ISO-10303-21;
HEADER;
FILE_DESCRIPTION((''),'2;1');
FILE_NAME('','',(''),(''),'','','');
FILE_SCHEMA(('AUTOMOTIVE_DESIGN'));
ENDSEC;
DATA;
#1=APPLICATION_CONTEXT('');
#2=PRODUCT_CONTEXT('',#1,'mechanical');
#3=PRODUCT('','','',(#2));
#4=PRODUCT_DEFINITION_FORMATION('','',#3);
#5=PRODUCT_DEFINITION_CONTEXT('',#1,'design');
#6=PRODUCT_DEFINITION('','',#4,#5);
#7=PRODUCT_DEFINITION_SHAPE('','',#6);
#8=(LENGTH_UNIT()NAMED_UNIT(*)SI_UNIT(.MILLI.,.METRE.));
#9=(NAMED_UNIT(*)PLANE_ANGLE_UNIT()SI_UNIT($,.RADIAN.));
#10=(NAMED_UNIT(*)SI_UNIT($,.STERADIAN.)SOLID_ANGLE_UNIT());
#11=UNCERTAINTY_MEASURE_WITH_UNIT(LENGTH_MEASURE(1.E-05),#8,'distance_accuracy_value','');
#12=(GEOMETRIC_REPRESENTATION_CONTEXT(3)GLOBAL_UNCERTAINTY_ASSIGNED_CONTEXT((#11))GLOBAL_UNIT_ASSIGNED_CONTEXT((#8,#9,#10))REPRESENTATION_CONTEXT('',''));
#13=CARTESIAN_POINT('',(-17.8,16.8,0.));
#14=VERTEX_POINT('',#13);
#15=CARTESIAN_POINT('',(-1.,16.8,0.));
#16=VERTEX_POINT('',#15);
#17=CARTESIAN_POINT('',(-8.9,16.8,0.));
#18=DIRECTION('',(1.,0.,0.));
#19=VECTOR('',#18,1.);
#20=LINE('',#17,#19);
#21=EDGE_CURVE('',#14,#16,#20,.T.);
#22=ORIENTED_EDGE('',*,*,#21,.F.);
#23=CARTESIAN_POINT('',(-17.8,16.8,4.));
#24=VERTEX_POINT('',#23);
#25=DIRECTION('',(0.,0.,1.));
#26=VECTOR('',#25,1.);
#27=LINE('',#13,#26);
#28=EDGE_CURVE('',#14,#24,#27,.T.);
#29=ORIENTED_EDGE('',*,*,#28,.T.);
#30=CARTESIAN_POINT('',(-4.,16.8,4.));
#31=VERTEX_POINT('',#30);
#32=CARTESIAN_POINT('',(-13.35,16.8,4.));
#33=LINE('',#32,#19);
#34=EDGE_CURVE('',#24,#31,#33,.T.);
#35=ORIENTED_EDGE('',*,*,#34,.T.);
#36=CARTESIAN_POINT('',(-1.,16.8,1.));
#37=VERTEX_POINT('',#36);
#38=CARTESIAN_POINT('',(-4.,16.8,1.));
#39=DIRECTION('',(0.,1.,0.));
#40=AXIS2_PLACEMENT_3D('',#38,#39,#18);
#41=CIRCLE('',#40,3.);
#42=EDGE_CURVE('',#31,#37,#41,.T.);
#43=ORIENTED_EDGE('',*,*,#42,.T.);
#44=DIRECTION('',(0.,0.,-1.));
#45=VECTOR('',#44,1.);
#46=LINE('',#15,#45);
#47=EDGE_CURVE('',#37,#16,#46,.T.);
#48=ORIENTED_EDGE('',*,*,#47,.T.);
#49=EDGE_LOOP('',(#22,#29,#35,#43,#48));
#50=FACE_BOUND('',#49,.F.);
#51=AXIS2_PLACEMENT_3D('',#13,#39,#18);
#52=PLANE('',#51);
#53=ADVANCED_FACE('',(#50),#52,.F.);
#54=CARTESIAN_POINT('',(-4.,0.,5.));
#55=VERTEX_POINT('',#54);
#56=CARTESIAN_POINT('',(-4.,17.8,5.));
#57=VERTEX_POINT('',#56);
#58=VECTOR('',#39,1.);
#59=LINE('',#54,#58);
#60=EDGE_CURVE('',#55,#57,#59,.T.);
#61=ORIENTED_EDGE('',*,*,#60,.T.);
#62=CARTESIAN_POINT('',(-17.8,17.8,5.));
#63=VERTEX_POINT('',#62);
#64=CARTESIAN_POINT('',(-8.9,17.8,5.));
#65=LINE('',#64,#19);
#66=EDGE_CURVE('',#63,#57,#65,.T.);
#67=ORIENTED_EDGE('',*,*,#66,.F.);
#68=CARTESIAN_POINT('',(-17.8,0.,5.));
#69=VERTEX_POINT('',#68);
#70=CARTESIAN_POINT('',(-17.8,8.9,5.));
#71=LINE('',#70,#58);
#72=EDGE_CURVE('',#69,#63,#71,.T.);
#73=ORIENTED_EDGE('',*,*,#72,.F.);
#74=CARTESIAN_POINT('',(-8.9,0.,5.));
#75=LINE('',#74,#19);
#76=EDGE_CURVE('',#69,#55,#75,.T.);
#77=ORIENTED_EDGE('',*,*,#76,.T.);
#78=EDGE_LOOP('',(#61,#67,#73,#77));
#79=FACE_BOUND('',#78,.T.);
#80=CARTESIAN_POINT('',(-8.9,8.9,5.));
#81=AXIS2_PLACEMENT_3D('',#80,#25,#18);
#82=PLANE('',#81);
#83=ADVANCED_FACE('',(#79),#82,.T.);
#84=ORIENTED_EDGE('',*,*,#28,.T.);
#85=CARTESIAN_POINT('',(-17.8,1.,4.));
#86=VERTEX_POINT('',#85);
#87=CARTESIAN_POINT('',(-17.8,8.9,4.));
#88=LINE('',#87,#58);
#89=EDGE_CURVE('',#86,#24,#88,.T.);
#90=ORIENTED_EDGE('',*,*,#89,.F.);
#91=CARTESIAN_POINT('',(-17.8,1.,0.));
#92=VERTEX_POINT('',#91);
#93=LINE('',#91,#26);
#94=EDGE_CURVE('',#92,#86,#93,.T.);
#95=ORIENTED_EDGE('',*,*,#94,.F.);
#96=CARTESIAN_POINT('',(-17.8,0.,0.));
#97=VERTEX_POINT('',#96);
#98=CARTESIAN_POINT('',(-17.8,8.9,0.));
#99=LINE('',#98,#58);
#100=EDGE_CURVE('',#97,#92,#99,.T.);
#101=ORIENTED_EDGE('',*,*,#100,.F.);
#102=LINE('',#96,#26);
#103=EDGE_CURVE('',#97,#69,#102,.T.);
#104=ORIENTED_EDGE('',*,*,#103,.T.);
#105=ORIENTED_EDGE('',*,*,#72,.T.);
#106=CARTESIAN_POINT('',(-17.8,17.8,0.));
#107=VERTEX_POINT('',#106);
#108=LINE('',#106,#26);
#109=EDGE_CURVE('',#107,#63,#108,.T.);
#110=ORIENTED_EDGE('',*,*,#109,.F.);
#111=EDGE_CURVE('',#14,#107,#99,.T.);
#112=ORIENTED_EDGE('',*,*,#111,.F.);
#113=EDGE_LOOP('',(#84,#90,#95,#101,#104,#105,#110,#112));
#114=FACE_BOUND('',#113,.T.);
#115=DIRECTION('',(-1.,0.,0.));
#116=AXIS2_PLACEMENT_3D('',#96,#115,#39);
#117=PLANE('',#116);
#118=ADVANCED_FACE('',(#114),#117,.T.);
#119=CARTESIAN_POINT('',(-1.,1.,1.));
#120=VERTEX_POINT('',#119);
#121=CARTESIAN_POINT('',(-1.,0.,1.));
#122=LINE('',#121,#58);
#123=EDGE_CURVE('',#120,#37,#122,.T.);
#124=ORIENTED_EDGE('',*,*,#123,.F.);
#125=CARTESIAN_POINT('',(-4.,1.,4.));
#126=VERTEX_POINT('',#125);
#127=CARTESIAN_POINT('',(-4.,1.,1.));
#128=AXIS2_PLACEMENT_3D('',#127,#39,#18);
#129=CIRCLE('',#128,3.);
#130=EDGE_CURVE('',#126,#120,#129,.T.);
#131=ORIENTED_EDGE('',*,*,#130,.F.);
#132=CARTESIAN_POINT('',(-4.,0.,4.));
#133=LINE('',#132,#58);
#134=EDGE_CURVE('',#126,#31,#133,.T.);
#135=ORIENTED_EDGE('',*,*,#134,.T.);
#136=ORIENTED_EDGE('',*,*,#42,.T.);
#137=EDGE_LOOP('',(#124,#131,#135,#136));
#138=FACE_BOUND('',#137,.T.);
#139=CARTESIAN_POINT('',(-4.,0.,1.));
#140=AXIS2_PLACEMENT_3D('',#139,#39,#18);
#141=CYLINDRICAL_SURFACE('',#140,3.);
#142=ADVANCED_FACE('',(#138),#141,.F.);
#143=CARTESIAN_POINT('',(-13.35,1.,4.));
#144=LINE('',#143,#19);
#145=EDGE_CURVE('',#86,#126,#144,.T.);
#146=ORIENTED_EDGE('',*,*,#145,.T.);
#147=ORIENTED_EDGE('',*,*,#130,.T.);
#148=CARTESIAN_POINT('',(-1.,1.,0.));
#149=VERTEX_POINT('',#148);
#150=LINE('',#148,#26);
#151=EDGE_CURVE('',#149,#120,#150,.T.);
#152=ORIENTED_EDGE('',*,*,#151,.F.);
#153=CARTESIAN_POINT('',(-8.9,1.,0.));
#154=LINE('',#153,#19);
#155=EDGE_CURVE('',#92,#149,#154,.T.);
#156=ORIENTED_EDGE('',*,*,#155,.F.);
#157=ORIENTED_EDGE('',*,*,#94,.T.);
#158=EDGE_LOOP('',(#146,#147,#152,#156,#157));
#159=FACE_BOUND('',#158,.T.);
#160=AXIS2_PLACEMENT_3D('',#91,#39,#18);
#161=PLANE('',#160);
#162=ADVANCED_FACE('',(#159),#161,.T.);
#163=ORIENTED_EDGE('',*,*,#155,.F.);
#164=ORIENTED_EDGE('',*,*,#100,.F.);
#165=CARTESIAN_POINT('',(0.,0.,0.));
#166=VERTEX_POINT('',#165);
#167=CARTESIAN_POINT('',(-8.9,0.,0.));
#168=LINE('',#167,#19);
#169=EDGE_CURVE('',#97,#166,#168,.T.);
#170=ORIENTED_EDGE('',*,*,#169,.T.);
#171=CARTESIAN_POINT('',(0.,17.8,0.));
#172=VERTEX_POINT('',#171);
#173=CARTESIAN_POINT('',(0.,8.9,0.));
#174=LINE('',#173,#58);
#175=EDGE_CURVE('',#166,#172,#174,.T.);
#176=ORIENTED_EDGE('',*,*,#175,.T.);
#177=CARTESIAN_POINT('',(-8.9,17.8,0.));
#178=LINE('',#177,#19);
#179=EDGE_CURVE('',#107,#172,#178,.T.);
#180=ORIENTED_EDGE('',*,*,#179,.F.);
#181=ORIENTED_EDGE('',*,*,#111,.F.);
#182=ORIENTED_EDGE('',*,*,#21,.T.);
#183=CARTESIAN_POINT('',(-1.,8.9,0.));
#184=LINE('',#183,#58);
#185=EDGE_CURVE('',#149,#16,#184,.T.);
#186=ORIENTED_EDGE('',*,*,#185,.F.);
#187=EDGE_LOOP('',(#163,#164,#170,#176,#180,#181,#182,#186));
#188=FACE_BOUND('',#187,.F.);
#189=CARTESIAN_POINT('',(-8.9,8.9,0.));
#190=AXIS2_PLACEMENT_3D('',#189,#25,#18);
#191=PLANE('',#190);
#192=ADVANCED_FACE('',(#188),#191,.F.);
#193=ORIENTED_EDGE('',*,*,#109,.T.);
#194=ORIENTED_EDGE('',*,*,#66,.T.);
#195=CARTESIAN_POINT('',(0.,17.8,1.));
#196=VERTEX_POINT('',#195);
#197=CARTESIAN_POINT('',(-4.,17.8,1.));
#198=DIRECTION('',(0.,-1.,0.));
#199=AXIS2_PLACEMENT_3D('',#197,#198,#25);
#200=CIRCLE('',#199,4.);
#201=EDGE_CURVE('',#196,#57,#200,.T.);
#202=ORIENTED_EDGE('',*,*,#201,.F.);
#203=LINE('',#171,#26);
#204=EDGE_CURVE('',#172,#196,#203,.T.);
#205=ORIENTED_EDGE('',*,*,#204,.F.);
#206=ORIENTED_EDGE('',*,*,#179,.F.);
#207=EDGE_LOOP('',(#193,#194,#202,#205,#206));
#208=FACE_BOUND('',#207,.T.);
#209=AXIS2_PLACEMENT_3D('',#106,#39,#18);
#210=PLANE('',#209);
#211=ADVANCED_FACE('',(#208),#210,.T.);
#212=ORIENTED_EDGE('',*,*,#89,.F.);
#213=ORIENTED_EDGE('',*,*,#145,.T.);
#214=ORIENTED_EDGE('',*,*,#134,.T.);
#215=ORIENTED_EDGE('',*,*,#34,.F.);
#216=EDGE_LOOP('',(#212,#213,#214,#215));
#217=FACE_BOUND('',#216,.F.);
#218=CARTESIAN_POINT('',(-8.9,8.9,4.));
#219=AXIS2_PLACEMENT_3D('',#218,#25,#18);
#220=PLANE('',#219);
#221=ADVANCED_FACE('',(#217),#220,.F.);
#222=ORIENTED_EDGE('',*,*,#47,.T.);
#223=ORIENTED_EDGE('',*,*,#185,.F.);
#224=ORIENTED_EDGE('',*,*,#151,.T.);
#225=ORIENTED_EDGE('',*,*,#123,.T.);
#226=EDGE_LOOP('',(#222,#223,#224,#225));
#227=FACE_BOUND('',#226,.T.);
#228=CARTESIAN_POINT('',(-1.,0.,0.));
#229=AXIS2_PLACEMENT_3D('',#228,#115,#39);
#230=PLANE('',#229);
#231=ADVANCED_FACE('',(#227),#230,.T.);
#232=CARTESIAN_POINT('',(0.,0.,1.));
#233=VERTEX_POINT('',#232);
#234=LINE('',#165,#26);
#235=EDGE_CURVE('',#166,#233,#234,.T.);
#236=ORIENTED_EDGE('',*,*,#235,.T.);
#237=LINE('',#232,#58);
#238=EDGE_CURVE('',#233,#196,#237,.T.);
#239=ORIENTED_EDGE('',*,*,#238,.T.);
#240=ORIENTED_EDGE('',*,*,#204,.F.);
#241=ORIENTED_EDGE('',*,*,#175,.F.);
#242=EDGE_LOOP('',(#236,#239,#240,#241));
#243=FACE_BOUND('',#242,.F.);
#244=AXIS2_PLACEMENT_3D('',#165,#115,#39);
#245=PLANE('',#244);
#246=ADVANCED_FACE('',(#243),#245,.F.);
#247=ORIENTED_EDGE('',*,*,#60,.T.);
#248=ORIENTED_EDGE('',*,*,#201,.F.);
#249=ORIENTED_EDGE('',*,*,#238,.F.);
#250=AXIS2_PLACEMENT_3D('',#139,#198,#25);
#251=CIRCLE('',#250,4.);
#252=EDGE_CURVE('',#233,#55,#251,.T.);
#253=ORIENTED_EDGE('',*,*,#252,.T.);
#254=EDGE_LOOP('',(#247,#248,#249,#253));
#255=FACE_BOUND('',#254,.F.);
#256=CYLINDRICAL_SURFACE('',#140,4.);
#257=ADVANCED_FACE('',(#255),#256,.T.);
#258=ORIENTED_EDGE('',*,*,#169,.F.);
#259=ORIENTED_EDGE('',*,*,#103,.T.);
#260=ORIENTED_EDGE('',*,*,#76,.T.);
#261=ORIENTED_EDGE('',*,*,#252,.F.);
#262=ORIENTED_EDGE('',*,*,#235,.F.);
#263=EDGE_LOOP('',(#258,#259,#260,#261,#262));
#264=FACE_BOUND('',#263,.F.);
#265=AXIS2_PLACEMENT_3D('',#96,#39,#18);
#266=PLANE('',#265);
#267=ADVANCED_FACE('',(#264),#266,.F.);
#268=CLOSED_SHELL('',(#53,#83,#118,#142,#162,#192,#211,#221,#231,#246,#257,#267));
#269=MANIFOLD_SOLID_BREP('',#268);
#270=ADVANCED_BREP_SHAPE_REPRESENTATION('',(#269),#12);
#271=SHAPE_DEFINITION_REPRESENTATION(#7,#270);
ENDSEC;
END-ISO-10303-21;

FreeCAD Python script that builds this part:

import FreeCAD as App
import Part
import Sketcher
Q = App.Units.Quantity


def edges_at(feature, points):
    """Names of the edges that pass closest to the given points."""
    edges = feature.Shape.Edges
    near = lambda p: min(range(len(edges)), key=lambda i: edges[i].distToShape(Part.Vertex(*p))[0])
    return sorted({f"Edge{near(p) + 1}" for p in points})


def faces_at(feature, points):
    """Names of the faces that lie closest to the given points."""
    faces = feature.Shape.Faces
    near = lambda p: min(range(len(faces)), key=lambda i: faces[i].distToShape(Part.Vertex(*p))[0])
    return sorted({f"Face{near(p) + 1}" for p in points})

doc = App.newDocument("Part")
params = doc.addObject("Spreadsheet::Sheet", "Params")
for row, (alias, value) in enumerate([
    ("sketch1_width", "17.8 mm"),
    ("pad1_length", "5 mm"),
    ("fillet_radius", "4 mm"),
    ("thickness_wall", "1 mm"),
], start=1):
    params.set(f"A{row}", alias)
    params.set(f"B{row}", "=" + value)
    params.setAlias(f"B{row}", alias)

body = doc.addObject("PartDesign::Body", "Body")

# Sketch on XY plane
sketch1 = body.newObject("Sketcher::SketchObject", "Sketch")
sketch1.AttachmentSupport = (doc.getObject("XY_Plane"), [""])
sketch1.MapMode = "FlatFace"
sketch1.addGeometry(Part.LineSegment(App.Vector(-17.8, 17.8, 0), App.Vector(-17.8, 0, 0)), False)
sketch1.addGeometry(Part.LineSegment(App.Vector(-17.8, 0, 0), App.Vector(0, 0, 0)), False)
sketch1.addGeometry(Part.LineSegment(App.Vector(0, 0, 0), App.Vector(0, 17.8, 0)), False)
sketch1.addGeometry(Part.LineSegment(App.Vector(0, 17.8, 0), App.Vector(-17.8, 17.8, 0)), False)
sketch1.addConstraint(Sketcher.Constraint("Coincident", 0, 2, 1, 1))
sketch1.addConstraint(Sketcher.Constraint("Coincident", 1, 2, 2, 1))
sketch1.addConstraint(Sketcher.Constraint("Coincident", 2, 2, 3, 1))
sketch1.addConstraint(Sketcher.Constraint("Coincident", 3, 2, 0, 1))
sketch1.addConstraint(Sketcher.Constraint("Vertical", 0))
sketch1.addConstraint(Sketcher.Constraint("Horizontal", 1))
sketch1.addConstraint(Sketcher.Constraint("Vertical", 2))
sketch1.addConstraint(Sketcher.Constraint("Horizontal", 3))
sketch1.addConstraint(Sketcher.Constraint("Coincident", 1, 2, -1, 1))
sketch1.addConstraint(Sketcher.Constraint("Equal", 3, 0))
sketch1.addConstraint(Sketcher.Constraint("DistanceX", 1, 1, 1, 2, Q("17.8 mm")))
sketch1.setExpression("Constraints[10]", "Params.sketch1_width")
pad1 = body.newObject("PartDesign::Pad", "Pad")
pad1.Profile = sketch1
pad1.setExpression("Length", "Params.pad1_length")
doc.recompute()

fillet = body.newObject("PartDesign::Fillet", "Fillet")
fillet.Base = (pad1, edges_at(pad1, [(0, 8.9, 5)]))
fillet.setExpression("Radius", "Params.fillet_radius")
doc.recompute()

thickness = body.newObject("PartDesign::Thickness", "Thickness")
thickness.Base = (fillet, faces_at(fillet, [(-8.9, 8.9, 0), (-17.8, 8.9, 2.5)]))
thickness.setExpression("Value", "Params.thickness_wall")
thickness.Reversed = True
thickness.Join = "Arc"

doc.recompute()
